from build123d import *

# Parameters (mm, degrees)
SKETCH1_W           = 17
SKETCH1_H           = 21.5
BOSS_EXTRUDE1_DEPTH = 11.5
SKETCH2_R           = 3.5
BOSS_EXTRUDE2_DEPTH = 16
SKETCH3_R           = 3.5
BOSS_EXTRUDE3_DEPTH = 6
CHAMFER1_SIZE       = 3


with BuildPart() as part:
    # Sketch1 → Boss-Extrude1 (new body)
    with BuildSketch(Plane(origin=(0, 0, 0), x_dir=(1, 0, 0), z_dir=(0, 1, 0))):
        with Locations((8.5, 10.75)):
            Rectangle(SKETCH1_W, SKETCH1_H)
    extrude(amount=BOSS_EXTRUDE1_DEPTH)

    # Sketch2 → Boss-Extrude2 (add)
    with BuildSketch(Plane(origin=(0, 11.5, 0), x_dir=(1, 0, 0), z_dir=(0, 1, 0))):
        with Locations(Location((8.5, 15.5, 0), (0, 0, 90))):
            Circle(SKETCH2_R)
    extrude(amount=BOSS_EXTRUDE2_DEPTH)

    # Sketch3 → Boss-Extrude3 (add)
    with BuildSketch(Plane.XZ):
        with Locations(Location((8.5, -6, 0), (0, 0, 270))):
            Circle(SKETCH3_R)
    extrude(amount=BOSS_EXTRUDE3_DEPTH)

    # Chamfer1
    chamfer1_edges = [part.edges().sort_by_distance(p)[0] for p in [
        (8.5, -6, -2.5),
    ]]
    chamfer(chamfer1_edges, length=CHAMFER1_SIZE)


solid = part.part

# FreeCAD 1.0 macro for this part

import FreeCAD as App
import Part
import Sketcher

V = App.Vector
Q = App.Units.Quantity


def edges_at(feature, points):
    """Names of the edges that pass closest to the given points."""
    edges = feature.Shape.Edges
    near = lambda p: min(range(len(edges)), key=lambda i: edges[i].distToShape(Part.Vertex(*p))[0])
    return sorted({f"Edge{near(p) + 1}" for p in points})

doc = App.newDocument("Part")
body = doc.addObject("PartDesign::Body", "Body")

# Sketch on XZ plane
sketch1 = doc.addObject("Sketcher::SketchObject", "Sketch")
body.addObject(sketch1)
sketch1.AttachmentSupport = (doc.XZ_Plane, [""])
sketch1.MapMode = "FlatFace"
sketch1.addGeometry([
    Part.LineSegment(V(0, -22, 0), V(0, 0, 0)),
    Part.LineSegment(V(0, 0, 0), V(17, 0, 0)),
    Part.LineSegment(V(17, 0, 0), V(17, -22, 0)),
    Part.LineSegment(V(17, -22, 0), V(0, -22, 0)),
], False)
sketch1.addConstraint([
    Sketcher.Constraint("Coincident", 0, 2, 1, 1),
    Sketcher.Constraint("Coincident", 1, 2, 2, 1),
    Sketcher.Constraint("Coincident", 2, 2, 3, 1),
    Sketcher.Constraint("Coincident", 3, 2, 0, 1),
    Sketcher.Constraint("Vertical", 0),
    Sketcher.Constraint("Horizontal", 1),
    Sketcher.Constraint("Vertical", 2),
    Sketcher.Constraint("Horizontal", 3),
    Sketcher.Constraint("Coincident", 0, 2, -1, 1),
    Sketcher.Constraint("DistanceX", 1, 1, 1, 2, Q("17 mm")),
    Sketcher.Constraint("DistanceY", 0, 1, 0, 2, Q("21.5 mm")),
])
pad1 = doc.addObject("PartDesign::Pad", "Pad")
body.addObject(pad1)
pad1.Profile = sketch1
pad1.Length = 11.5
pad1.Reversed = True

# Sketch on XZ plane
sketch2 = doc.addObject("Sketcher::SketchObject", "Sketch001")
body.addObject(sketch2)
sketch2.AttachmentSupport = (doc.XZ_Plane, [""])
sketch2.MapMode = "FlatFace"
sketch2.AttachmentOffset = App.Placement(V(0, 0, -11.5), App.Rotation())
sketch2.addGeometry(Part.Circle(V(8.5, -15.5, 0), V(0, 0, 1), 3.5), False)
sketch2.addConstraint([
    Sketcher.Constraint("Diameter", 0, Q("7 mm")),
    Sketcher.Constraint("DistanceX", -1, 1, 0, 3, Q("8.5 mm")),
    Sketcher.Constraint("DistanceY", 0, 3, -1, 1, Q("15.5 mm")),
])
pad2 = doc.addObject("PartDesign::Pad", "Pad001")
body.addObject(pad2)
pad2.Profile = sketch2
pad2.Length = 16
pad2.Reversed = True

# Sketch on XZ plane
sketch3 = doc.addObject("Sketcher::SketchObject", "Sketch002")
body.addObject(sketch3)
sketch3.AttachmentSupport = (doc.XZ_Plane, [""])
sketch3.MapMode = "FlatFace"
sketch3.addGeometry(Part.Circle(V(8.5, -6, 0), V(0, 0, 1), 3.5), False)
sketch3.addConstraint([
    Sketcher.Constraint("Diameter", 0, Q("7 mm")),
    Sketcher.Constraint("DistanceY", 0, 3, -1, 1, Q("6 mm")),
    Sketcher.Constraint("DistanceX", -1, 1, 0, 3, Q("8.5 mm")),
])
pad3 = doc.addObject("PartDesign::Pad", "Pad002")
body.addObject(pad3)
pad3.Profile = sketch3
pad3.Length = 6
doc.recompute()

chamfer = doc.addObject("PartDesign::Chamfer", "Chamfer")
body.addObject(chamfer)
chamfer.Base = (pad3, edges_at(pad3, [(8.5, -6, -2.5)]))
chamfer.Size = 3

doc.recompute()
